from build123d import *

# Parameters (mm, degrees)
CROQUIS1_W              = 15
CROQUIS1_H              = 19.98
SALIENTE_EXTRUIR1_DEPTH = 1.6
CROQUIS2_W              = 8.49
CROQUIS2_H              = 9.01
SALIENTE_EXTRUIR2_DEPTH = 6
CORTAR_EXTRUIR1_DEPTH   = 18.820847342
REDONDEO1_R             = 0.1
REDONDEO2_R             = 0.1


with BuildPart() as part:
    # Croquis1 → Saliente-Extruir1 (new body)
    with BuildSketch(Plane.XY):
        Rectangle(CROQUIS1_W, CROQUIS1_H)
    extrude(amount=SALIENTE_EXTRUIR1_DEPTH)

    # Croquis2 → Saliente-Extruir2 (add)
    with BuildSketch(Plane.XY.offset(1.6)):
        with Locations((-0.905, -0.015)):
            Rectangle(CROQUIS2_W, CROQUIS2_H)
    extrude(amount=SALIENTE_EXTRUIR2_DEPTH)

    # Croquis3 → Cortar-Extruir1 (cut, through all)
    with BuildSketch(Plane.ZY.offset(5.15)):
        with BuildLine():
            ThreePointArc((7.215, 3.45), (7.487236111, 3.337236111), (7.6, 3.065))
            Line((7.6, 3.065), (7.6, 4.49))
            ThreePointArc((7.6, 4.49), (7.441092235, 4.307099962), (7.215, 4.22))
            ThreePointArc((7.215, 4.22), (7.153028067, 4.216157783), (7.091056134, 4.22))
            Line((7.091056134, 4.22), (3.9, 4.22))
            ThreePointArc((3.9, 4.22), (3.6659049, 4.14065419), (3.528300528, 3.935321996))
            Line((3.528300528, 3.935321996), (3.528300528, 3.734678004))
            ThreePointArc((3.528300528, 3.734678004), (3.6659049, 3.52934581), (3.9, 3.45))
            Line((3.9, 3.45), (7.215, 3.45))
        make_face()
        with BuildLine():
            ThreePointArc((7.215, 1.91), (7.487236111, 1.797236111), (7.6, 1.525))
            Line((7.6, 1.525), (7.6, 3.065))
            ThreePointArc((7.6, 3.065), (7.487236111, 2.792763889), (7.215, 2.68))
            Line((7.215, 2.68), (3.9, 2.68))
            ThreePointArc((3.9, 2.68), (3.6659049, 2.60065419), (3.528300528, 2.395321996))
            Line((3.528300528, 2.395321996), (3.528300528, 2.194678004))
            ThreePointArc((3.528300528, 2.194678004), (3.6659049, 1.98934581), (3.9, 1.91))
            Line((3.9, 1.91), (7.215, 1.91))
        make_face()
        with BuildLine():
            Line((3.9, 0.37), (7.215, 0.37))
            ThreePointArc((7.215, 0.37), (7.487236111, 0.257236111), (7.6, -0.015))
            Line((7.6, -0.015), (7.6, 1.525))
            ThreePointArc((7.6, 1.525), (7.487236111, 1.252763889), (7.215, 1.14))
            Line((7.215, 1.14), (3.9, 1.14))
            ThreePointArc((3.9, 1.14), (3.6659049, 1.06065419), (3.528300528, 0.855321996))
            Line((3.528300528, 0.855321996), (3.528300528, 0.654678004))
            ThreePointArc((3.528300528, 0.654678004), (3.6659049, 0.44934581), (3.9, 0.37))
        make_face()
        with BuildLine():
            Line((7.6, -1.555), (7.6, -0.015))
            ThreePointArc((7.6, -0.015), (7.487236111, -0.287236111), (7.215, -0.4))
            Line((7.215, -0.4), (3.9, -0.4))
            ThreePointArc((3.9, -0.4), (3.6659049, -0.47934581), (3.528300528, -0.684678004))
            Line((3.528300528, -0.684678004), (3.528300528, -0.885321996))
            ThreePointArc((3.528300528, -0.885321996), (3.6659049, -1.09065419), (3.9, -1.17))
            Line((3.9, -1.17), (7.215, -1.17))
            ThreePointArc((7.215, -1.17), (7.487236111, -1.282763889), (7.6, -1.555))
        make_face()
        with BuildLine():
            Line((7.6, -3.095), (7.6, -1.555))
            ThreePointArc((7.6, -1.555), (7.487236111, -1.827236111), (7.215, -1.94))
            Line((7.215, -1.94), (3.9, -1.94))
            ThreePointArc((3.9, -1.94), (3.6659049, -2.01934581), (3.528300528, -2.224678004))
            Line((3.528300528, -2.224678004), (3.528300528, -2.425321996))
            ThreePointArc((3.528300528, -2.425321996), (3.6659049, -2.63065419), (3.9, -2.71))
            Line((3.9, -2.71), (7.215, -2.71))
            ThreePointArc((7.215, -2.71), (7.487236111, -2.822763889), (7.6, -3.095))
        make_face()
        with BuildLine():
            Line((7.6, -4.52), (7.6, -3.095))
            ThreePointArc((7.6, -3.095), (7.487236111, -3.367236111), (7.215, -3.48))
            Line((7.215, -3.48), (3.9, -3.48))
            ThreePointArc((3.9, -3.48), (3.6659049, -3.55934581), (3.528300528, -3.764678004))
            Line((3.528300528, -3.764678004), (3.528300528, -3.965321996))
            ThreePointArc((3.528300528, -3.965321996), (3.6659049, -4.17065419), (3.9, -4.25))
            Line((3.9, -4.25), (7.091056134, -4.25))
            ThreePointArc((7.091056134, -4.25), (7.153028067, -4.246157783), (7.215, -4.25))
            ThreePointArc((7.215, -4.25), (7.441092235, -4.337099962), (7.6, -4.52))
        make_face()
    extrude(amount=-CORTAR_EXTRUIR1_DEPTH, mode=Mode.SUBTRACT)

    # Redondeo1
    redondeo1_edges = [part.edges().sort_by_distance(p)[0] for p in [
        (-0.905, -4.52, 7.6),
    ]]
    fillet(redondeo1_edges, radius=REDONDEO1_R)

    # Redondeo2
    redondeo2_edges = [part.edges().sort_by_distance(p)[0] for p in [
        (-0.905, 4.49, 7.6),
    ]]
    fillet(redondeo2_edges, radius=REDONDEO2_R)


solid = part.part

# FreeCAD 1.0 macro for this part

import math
import FreeCAD as App
import Part
import Sketcher
Q = App.Units.Quantity


def edges_at(feature, points):
    """Names of the edges that pass closest to the given points."""
    edges = feature.Shape.Edges
    near = lambda p: min(range(len(edges)), key=lambda i: edges[i].distToShape(Part.Vertex(*p))[0])
    return sorted({f"Edge{near(p) + 1}" for p in points})


def add_polygon(sketch, points):
    """Adds a closed chain of lines whose ends are joined by coincident constraints."""
    first, n = sketch.GeometryCount, len(points)
    for a, b in zip(points, points[1:] + points[:1]):
        sketch.addGeometry(Part.LineSegment(App.Vector(*a, 0), App.Vector(*b, 0)), False)
    for i in range(n):
        sketch.addConstraint(Sketcher.Constraint("Coincident", first + i, 2, first + (i + 1) % n, 1))

doc = App.newDocument("Part")
params = doc.addObject("Spreadsheet::Sheet", "Params")
for row, (alias, value) in enumerate([
    ("sketch1_width", "15 mm"),
    ("sketch1_height", "19.98 mm"),
    ("pad1_length", "1.6 mm"),
    ("sketch2_width", "8.49 mm"),
    ("sketch2_height", "9.01 mm"),
    ("pad2_length", "6 mm"),
    ("fillet_radius", "0.1 mm"),
    ("fillet2_radius", "0.1 mm"),
], start=1):
    params.set(f"A{row}", alias)
    params.set(f"B{row}", "=" + value)
    params.setAlias(f"B{row}", alias)

body = doc.addObject("PartDesign::Body", "Body")

sketch1 = body.newObject("Sketcher::SketchObject", "Sketch")
sketch1.AttachmentSupport = (doc.getObject("XY_Plane"), [""])
sketch1.MapMode = "FlatFace"
add_polygon(sketch1, [(-8, 10), (-8, -10), (8, -10), (8, 10)])
sketch1.addConstraint(Sketcher.Constraint("Vertical", 0))
sketch1.addConstraint(Sketcher.Constraint("Horizontal", 1))
sketch1.addConstraint(Sketcher.Constraint("Vertical", 2))
sketch1.addConstraint(Sketcher.Constraint("Horizontal", 3))
sketch1.addConstraint(Sketcher.Constraint("Symmetric", 0, 2, 2, 2, -1, 1))
sketch1.addConstraint(Sketcher.Constraint("DistanceX", 1, 1, 1, 2, Q("15 mm")))
sketch1.addConstraint(Sketcher.Constraint("DistanceY", 0, 2, 0, 1, Q("19.98 mm")))
sketch1.setExpression("Constraints[9]", "Params.sketch1_width")
sketch1.setExpression("Constraints[10]", "Params.sketch1_height")
pad1 = body.newObject("PartDesign::Pad", "Pad")
pad1.Profile = sketch1
pad1.setExpression("Length", "Params.pad1_length")

sketch2 = body.newObject("Sketcher::SketchObject", "Sketch001")
sketch2.AttachmentSupport = (doc.getObject("XY_Plane"), [""])
sketch2.MapMode = "FlatFace"
sketch2.AttachmentOffset = App.Placement(App.Vector(0, 0, 1.6), App.Rotation())
add_polygon(sketch2, [(-5, 4), (-5, -5), (3, -5), (3, 4)])
sketch2.addConstraint(Sketcher.Constraint("Vertical", 0))
sketch2.addConstraint(Sketcher.Constraint("Horizontal", 1))
sketch2.addConstraint(Sketcher.Constraint("Vertical", 2))
sketch2.addConstraint(Sketcher.Constraint("Horizontal", 3))
sketch2.addConstraint(Sketcher.Constraint("DistanceX", 1, 1, 1, 2, Q("8.49 mm")))
sketch2.addConstraint(Sketcher.Constraint("DistanceY", 0, 2, 0, 1, Q("9.01 mm")))
sketch2.addConstraint(Sketcher.Constraint("DistanceX", 0, 2, -1, 1, Q("5.15 mm")))
sketch2.addConstraint(Sketcher.Constraint("DistanceY", 0, 2, -1, 1, Q("4.52 mm")))
sketch2.setExpression("Constraints[8]", "Params.sketch2_width")
sketch2.setExpression("Constraints[9]", "Params.sketch2_height")
pad2 = body.newObject("PartDesign::Pad", "Pad001")
pad2.Profile = sketch2
pad2.setExpression("Length", "Params.pad2_length")

sketch3 = body.newObject("Sketcher::SketchObject", "Sketch002")
sketch3.AttachmentSupport = (doc.getObject("YZ_Plane"), [""])
sketch3.MapMode = "FlatFace"
sketch3.AttachmentOffset = App.Placement(App.Vector(0, 0, -5.15), App.Rotation())
sketch3.addGeometry(Part.ArcOfCircle(Part.Circle(App.Vector(3.07, 7.22, 0), App.Vector(0, 0, 1), 0.38), math.radians(0), math.radians(90)), False)
sketch3.addGeometry(Part.LineSegment(App.Vector(3.06, 7.6, 0), App.Vector(4.49, 7.6, 0)), False)
sketch3.addGeometry(Part.ArcOfCircle(Part.Circle(App.Vector(4.72, 7.15, 0), App.Vector(0, 0, 1), 0.5), math.radians(117), math.radians(173)), False)
sketch3.addGeometry(Part.ArcOfCircle(Part.Circle(App.Vector(4.72, 7.15, 0), App.Vector(0, 0, 1), 0.5), math.radians(172.9), math.radians(187.1)), False)
sketch3.addGeometry(Part.LineSegment(App.Vector(4.22, 7.09, 0), App.Vector(4.22, 3.9, 0)), False)
sketch3.addGeometry(Part.ArcOfCircle(Part.Circle(App.Vector(3.83, 3.9, 0), App.Vector(0, 0, 1), 0.39), math.radians(-75), math.radians(0)), False)
sketch3.addGeometry(Part.LineSegment(App.Vector(3.94, 3.53, 0), App.Vector(3.73, 3.53, 0)), False)
sketch3.addGeometry(Part.ArcOfCircle(Part.Circle(App.Vector(3.84, 3.9, 0), App.Vector(0, 0, 1), 0.39), math.radians(-180), math.radians(-105)), False)
sketch3.addGeometry(Part.LineSegment(App.Vector(3.45, 3.9, 0), App.Vector(3.45, 7.21, 0)), False)
sketch3.addGeometry(Part.ArcOfCircle(Part.Circle(App.Vector(1.53, 7.22, 0), App.Vector(0, 0, 1), 0.38), math.radians(0), math.radians(90)), False)
sketch3.addGeometry(Part.LineSegment(App.Vector(1.52, 7.6, 0), App.Vector(3.06, 7.6, 0)), False)
sketch3.addGeometry(Part.ArcOfCircle(Part.Circle(App.Vector(3.06, 7.22, 0), App.Vector(0, 0, 1), 0.38), math.radians(90), math.radians(180)), False)
sketch3.addGeometry(Part.LineSegment(App.Vector(2.68, 7.21, 0), App.Vector(2.68, 3.9, 0)), False)
sketch3.addGeometry(Part.ArcOfCircle(Part.Circle(App.Vector(2.29, 3.9, 0), App.Vector(0, 0, 1), 0.39), math.radians(-75), math.radians(0)), False)
sketch3.addGeometry(Part.LineSegment(App.Vector(2.4, 3.53, 0), App.Vector(2.19, 3.53, 0)), False)
sketch3.addGeometry(Part.ArcOfCircle(Part.Circle(App.Vector(2.3, 3.9, 0), App.Vector(0, 0, 1), 0.39), math.radians(-180), math.radians(-105)), False)
sketch3.addGeometry(Part.LineSegment(App.Vector(1.91, 3.9, 0), App.Vector(1.91, 7.21, 0)), False)
sketch3.addGeometry(Part.LineSegment(App.Vector(0.37, 3.9, 0), App.Vector(0.37, 7.21, 0)), False)
sketch3.addGeometry(Part.ArcOfCircle(Part.Circle(App.Vector(-0.01, 7.22, 0), App.Vector(0, 0, 1), 0.38), math.radians(0), math.radians(90)), False)
sketch3.addGeometry(Part.LineSegment(App.Vector(-0.01, 7.6, 0), App.Vector(1.52, 7.6, 0)), False)
sketch3.addGeometry(Part.ArcOfCircle(Part.Circle(App.Vector(1.52, 7.22, 0), App.Vector(0, 0, 1), 0.38), math.radians(90), math.radians(180)), False)
sketch3.addGeometry(Part.LineSegment(App.Vector(1.14, 7.21, 0), App.Vector(1.14, 3.9, 0)), False)
sketch3.addGeometry(Part.ArcOfCircle(Part.Circle(App.Vector(0.75, 3.9, 0), App.Vector(0, 0, 1), 0.39), math.radians(-75), math.radians(0)), False)
sketch3.addGeometry(Part.LineSegment(App.Vector(0.86, 3.53, 0), App.Vector(0.65, 3.53, 0)), False)
sketch3.addGeometry(Part.ArcOfCircle(Part.Circle(App.Vector(0.76, 3.9, 0), App.Vector(0, 0, 1), 0.39), math.radians(-180), math.radians(-105)), False)
sketch3.addGeometry(Part.LineSegment(App.Vector(-1.55, 7.6, 0), App.Vector(-0.01, 7.6, 0)), False)
sketch3.addGeometry(Part.ArcOfCircle(Part.Circle(App.Vector(-0.02, 7.22, 0), App.Vector(0, 0, 1), 0.38), math.radians(90), math.radians(180)), False)
sketch3.addGeometry(Part.LineSegment(App.Vector(-0.4, 7.21, 0), App.Vector(-0.4, 3.9, 0)), False)
sketch3.addGeometry(Part.ArcOfCircle(Part.Circle(App.Vector(-0.79, 3.9, 0), App.Vector(0, 0, 1), 0.39), math.radians(-75), math.radians(0)), False)
sketch3.addGeometry(Part.LineSegment(App.Vector(-0.68, 3.53, 0), App.Vector(-0.89, 3.53, 0)), False)
sketch3.addGeometry(Part.ArcOfCircle(Part.Circle(App.Vector(-0.78, 3.9, 0), App.Vector(0, 0, 1), 0.39), math.radians(-180), math.radians(-105)), False)
sketch3.addGeometry(Part.LineSegment(App.Vector(-1.17, 3.9, 0), App.Vector(-1.17, 7.21, 0)), False)
sketch3.addGeometry(Part.ArcOfCircle(Part.Circle(App.Vector(-1.55, 7.22, 0), App.Vector(0, 0, 1), 0.38), math.radians(0), math.radians(90)), False)
sketch3.addGeometry(Part.LineSegment(App.Vector(-3.1, 7.6, 0), App.Vector(-1.55, 7.6, 0)), False)
sketch3.addGeometry(Part.ArcOfCircle(Part.Circle(App.Vector(-1.56, 7.22, 0), App.Vector(0, 0, 1), 0.38), math.radians(90), math.radians(180)), False)
sketch3.addGeometry(Part.LineSegment(App.Vector(-1.94, 7.21, 0), App.Vector(-1.94, 3.9, 0)), False)
sketch3.addGeometry(Part.ArcOfCircle(Part.Circle(App.Vector(-2.33, 3.9, 0), App.Vector(0, 0, 1), 0.39), math.radians(-75), math.radians(0)), False)
sketch3.addGeometry(Part.LineSegment(App.Vector(-2.22, 3.53, 0), App.Vector(-2.43, 3.53, 0)), False)
sketch3.addGeometry(Part.ArcOfCircle(Part.Circle(App.Vector(-2.32, 3.9, 0), App.Vector(0, 0, 1), 0.39), math.radians(-180), math.radians(-105)), False)
sketch3.addGeometry(Part.LineSegment(App.Vector(-2.71, 3.9, 0), App.Vector(-2.71, 7.21, 0)), False)
sketch3.addGeometry(Part.ArcOfCircle(Part.Circle(App.Vector(-3.09, 7.22, 0), App.Vector(0, 0, 1), 0.38), math.radians(0), math.radians(90)), False)
sketch3.addGeometry(Part.LineSegment(App.Vector(-4.52, 7.6, 0), App.Vector(-3.1, 7.6, 0)), False)
sketch3.addGeometry(Part.ArcOfCircle(Part.Circle(App.Vector(-3.1, 7.22, 0), App.Vector(0, 0, 1), 0.38), math.radians(90), math.radians(180)), False)
sketch3.addGeometry(Part.LineSegment(App.Vector(-3.48, 7.21, 0), App.Vector(-3.48, 3.9, 0)), False)
sketch3.addGeometry(Part.ArcOfCircle(Part.Circle(App.Vector(-3.87, 3.9, 0), App.Vector(0, 0, 1), 0.39), math.radians(-75), math.radians(0)), False)
sketch3.addGeometry(Part.LineSegment(App.Vector(-3.76, 3.53, 0), App.Vector(-3.97, 3.53, 0)), False)
sketch3.addGeometry(Part.ArcOfCircle(Part.Circle(App.Vector(-3.86, 3.9, 0), App.Vector(0, 0, 1), 0.39), math.radians(-180), math.radians(-105)), False)
sketch3.addGeometry(Part.LineSegment(App.Vector(-4.25, 3.9, 0), App.Vector(-4.25, 7.09, 0)), False)
sketch3.addGeometry(Part.ArcOfCircle(Part.Circle(App.Vector(-4.75, 7.15, 0), App.Vector(0, 0, 1), 0.5), math.radians(-7.1), math.radians(7.1)), False)
sketch3.addGeometry(Part.ArcOfCircle(Part.Circle(App.Vector(-4.75, 7.15, 0), App.Vector(0, 0, 1), 0.5), math.radians(7), math.radians(63)), False)
sketch3.addConstraint(Sketcher.Constraint("Tangent", 0, 2, 1, 1))
sketch3.addConstraint(Sketcher.Constraint("Coincident", 1, 2, 2, 1))
sketch3.addConstraint(Sketcher.Constraint("Tangent", 2, 2, 3, 1))
sketch3.addConstraint(Sketcher.Constraint("Coincident", 3, 2, 4, 1))
sketch3.addConstraint(Sketcher.Constraint("Tangent", 4, 2, 5, 2))
sketch3.addConstraint(Sketcher.Constraint("Coincident", 5, 1, 6, 1))
sketch3.addConstraint(Sketcher.Constraint("Coincident", 6, 2, 7, 2))
sketch3.addConstraint(Sketcher.Constraint("Tangent", 7, 1, 8, 1))
sketch3.addConstraint(Sketcher.Constraint("Tangent", 8, 2, 0, 1))
sketch3.addConstraint(Sketcher.Constraint("Tangent", 9, 2, 10, 1))
sketch3.addConstraint(Sketcher.Constraint("Tangent", 10, 2, 11, 1))
sketch3.addConstraint(Sketcher.Constraint("Tangent", 11, 2, 12, 1))
sketch3.addConstraint(Sketcher.Constraint("Tangent", 12, 2, 13, 2))
sketch3.addConstraint(Sketcher.Constraint("Coincident", 13, 1, 14, 1))
sketch3.addConstraint(Sketcher.Constraint("Coincident", 14, 2, 15, 2))
sketch3.addConstraint(Sketcher.Constraint("Tangent", 15, 1, 16, 1))
sketch3.addConstraint(Sketcher.Constraint("Tangent", 16, 2, 9, 1))
sketch3.addConstraint(Sketcher.Constraint("Tangent", 17, 2, 18, 1))
sketch3.addConstraint(Sketcher.Constraint("Tangent", 18, 2, 19, 1))
sketch3.addConstraint(Sketcher.Constraint("Tangent", 19, 2, 20, 1))
sketch3.addConstraint(Sketcher.Constraint("Tangent", 20, 2, 21, 1))
sketch3.addConstraint(Sketcher.Constraint("Tangent", 21, 2, 22, 2))
sketch3.addConstraint(Sketcher.Constraint("Coincident", 22, 1, 23, 1))
sketch3.addConstraint(Sketcher.Constraint("Coincident", 23, 2, 24, 2))
sketch3.addConstraint(Sketcher.Constraint("Tangent", 24, 1, 17, 1))
sketch3.addConstraint(Sketcher.Constraint("Tangent", 25, 2, 26, 1))
sketch3.addConstraint(Sketcher.Constraint("Tangent", 26, 2, 27, 1))
sketch3.addConstraint(Sketcher.Constraint("Tangent", 27, 2, 28, 2))
sketch3.addConstraint(Sketcher.Constraint("Coincident", 28, 1, 29, 1))
sketch3.addConstraint(Sketcher.Constraint("Coincident", 29, 2, 30, 2))
sketch3.addConstraint(Sketcher.Constraint("Tangent", 30, 1, 31, 1))
sketch3.addConstraint(Sketcher.Constraint("Tangent", 31, 2, 32, 1))
sketch3.addConstraint(Sketcher.Constraint("Tangent", 32, 2, 25, 1))
sketch3.addConstraint(Sketcher.Constraint("Tangent", 33, 2, 34, 1))
sketch3.addConstraint(Sketcher.Constraint("Tangent", 34, 2, 35, 1))
sketch3.addConstraint(Sketcher.Constraint("Tangent", 35, 2, 36, 2))
sketch3.addConstraint(Sketcher.Constraint("Coincident", 36, 1, 37, 1))
sketch3.addConstraint(Sketcher.Constraint("Coincident", 37, 2, 38, 2))
sketch3.addConstraint(Sketcher.Constraint("Tangent", 38, 1, 39, 1))
sketch3.addConstraint(Sketcher.Constraint("Tangent", 39, 2, 40, 1))
sketch3.addConstraint(Sketcher.Constraint("Tangent", 40, 2, 33, 1))
sketch3.addConstraint(Sketcher.Constraint("Tangent", 41, 2, 42, 1))
sketch3.addConstraint(Sketcher.Constraint("Tangent", 42, 2, 43, 1))
sketch3.addConstraint(Sketcher.Constraint("Tangent", 43, 2, 44, 2))
sketch3.addConstraint(Sketcher.Constraint("Coincident", 44, 1, 45, 1))
sketch3.addConstraint(Sketcher.Constraint("Coincident", 45, 2, 46, 2))
sketch3.addConstraint(Sketcher.Constraint("Tangent", 46, 1, 47, 1))
sketch3.addConstraint(Sketcher.Constraint("Coincident", 47, 2, 48, 1))
sketch3.addConstraint(Sketcher.Constraint("Tangent", 48, 2, 49, 1))
sketch3.addConstraint(Sketcher.Constraint("Coincident", 49, 2, 41, 1))
sketch3.addConstraint(Sketcher.Constraint("Horizontal", 1))
sketch3.addConstraint(Sketcher.Constraint("Vertical", 4))
sketch3.addConstraint(Sketcher.Constraint("Horizontal", 6))
sketch3.addConstraint(Sketcher.Constraint("Vertical", 8))
sketch3.addConstraint(Sketcher.Constraint("Horizontal", 10))
sketch3.addConstraint(Sketcher.Constraint("Vertical", 12))
sketch3.addConstraint(Sketcher.Constraint("Horizontal", 14))
sketch3.addConstraint(Sketcher.Constraint("Vertical", 16))
sketch3.addConstraint(Sketcher.Constraint("Vertical", 17))
sketch3.addConstraint(Sketcher.Constraint("Horizontal", 19))
sketch3.addConstraint(Sketcher.Constraint("Vertical", 21))
sketch3.addConstraint(Sketcher.Constraint("Horizontal", 23))
sketch3.addConstraint(Sketcher.Constraint("Horizontal", 25))
sketch3.addConstraint(Sketcher.Constraint("Vertical", 27))
sketch3.addConstraint(Sketcher.Constraint("Horizontal", 29))
sketch3.addConstraint(Sketcher.Constraint("Vertical", 31))
sketch3.addConstraint(Sketcher.Constraint("Horizontal", 33))
sketch3.addConstraint(Sketcher.Constraint("Vertical", 35))
sketch3.addConstraint(Sketcher.Constraint("Horizontal", 37))
sketch3.addConstraint(Sketcher.Constraint("Vertical", 39))
sketch3.addConstraint(Sketcher.Constraint("Horizontal", 41))
sketch3.addConstraint(Sketcher.Constraint("Vertical", 43))
sketch3.addConstraint(Sketcher.Constraint("Horizontal", 45))
sketch3.addConstraint(Sketcher.Constraint("Vertical", 47))
sketch3.addConstraint(Sketcher.Constraint("Coincident", 7, 3, 5, 3))
sketch3.addConstraint(Sketcher.Constraint("Coincident", 11, 3, 0, 3))
sketch3.addConstraint(Sketcher.Constraint("Coincident", 15, 3, 13, 3))
sketch3.addConstraint(Sketcher.Constraint("Coincident", 20, 3, 9, 3))
sketch3.addConstraint(Sketcher.Constraint("Coincident", 24, 3, 22, 3))
sketch3.addConstraint(Sketcher.Constraint("Coincident", 26, 3, 18, 3))
sketch3.addConstraint(Sketcher.Constraint("Coincident", 30, 3, 28, 3))
sketch3.addConstraint(Sketcher.Constraint("Coincident", 34, 3, 32, 3))
sketch3.addConstraint(Sketcher.Constraint("Coincident", 38, 3, 36, 3))
sketch3.addConstraint(Sketcher.Constraint("Coincident", 42, 3, 40, 3))
sketch3.addConstraint(Sketcher.Constraint("Coincident", 46, 3, 44, 3))
sketch3.addConstraint(Sketcher.Constraint("Equal", 2, 3))
sketch3.addConstraint(Sketcher.Constraint("Equal", 0, 5))
sketch3.addConstraint(Sketcher.Constraint("Equal", 5, 7))
sketch3.addConstraint(Sketcher.Constraint("Equal", 7, 9))
sketch3.addConstraint(Sketcher.Constraint("Equal", 9, 11))
sketch3.addConstraint(Sketcher.Constraint("Equal", 11, 13))
sketch3.addConstraint(Sketcher.Constraint("Equal", 13, 15))
sketch3.addConstraint(Sketcher.Constraint("Equal", 15, 18))
sketch3.addConstraint(Sketcher.Constraint("Equal", 18, 20))
sketch3.addConstraint(Sketcher.Constraint("Equal", 20, 22))
sketch3.addConstraint(Sketcher.Constraint("Equal", 22, 24))
sketch3.addConstraint(Sketcher.Constraint("Equal", 24, 26))
sketch3.addConstraint(Sketcher.Constraint("Equal", 26, 28))
sketch3.addConstraint(Sketcher.Constraint("Equal", 28, 30))
sketch3.addConstraint(Sketcher.Constraint("Equal", 30, 32))
sketch3.addConstraint(Sketcher.Constraint("Equal", 32, 34))
sketch3.addConstraint(Sketcher.Constraint("Equal", 34, 36))
sketch3.addConstraint(Sketcher.Constraint("Equal", 36, 38))
sketch3.addConstraint(Sketcher.Constraint("Equal", 38, 40))
sketch3.addConstraint(Sketcher.Constraint("Equal", 40, 42))
sketch3.addConstraint(Sketcher.Constraint("Equal", 42, 44))
sketch3.addConstraint(Sketcher.Constraint("Equal", 44, 46))
sketch3.addConstraint(Sketcher.Constraint("Equal", 3, 48))
sketch3.addConstraint(Sketcher.Constraint("Equal", 48, 49))
sketch3.addConstraint(Sketcher.Constraint("Horizontal", 7, 3, 13, 3))
sketch3.addConstraint(Sketcher.Constraint("Horizontal", 15, 3, 22, 3))
sketch3.addConstraint(Sketcher.Constraint("Horizontal", 24, 3, 28, 3))
sketch3.addConstraint(Sketcher.Constraint("Horizontal", 30, 3, 36, 3))
sketch3.addConstraint(Sketcher.Constraint("Horizontal", 38, 3, 44, 3))
sketch3.addConstraint(Sketcher.Constraint("Horizontal", 3, 3, 48, 3))
sketch3.addConstraint(Sketcher.Constraint("Horizontal", 42, 3, 2, 2))
sketch3.addConstraint(Sketcher.Constraint("Horizontal", 6, 2, 13, 1))
sketch3.addConstraint(Sketcher.Constraint("Horizontal", 14, 2, 22, 1))
sketch3.addConstraint(Sketcher.Constraint("Horizontal", 23, 2, 28, 1))
sketch3.addConstraint(Sketcher.Constraint("Horizontal", 29, 2, 36, 1))
sketch3.addConstraint(Sketcher.Constraint("Horizontal", 37, 2, 44, 1))
sketch3.addConstraint(Sketcher.Constraint("Horizontal", 3, 2, 47, 2))
sketch3.addConstraint(Sketcher.Constraint("Horizontal", 42, 2, 48, 2))
sketch3.addConstraint(Sketcher.Constraint("Vertical", 2, 2, 3, 2))
sketch3.addConstraint(Sketcher.Constraint("Radius", 0, Q("0.385 mm")))
sketch3.addConstraint(Sketcher.Constraint("DistanceY", -1, 1, 5, 3, Q("3.9 mm")))
sketch3.addConstraint(Sketcher.Constraint("DistanceY", -1, 1, 0, 2, Q("7.6 mm")))
sketch3.addConstraint(Sketcher.Constraint("DistanceX", 26, 2, -1, 1, Q("0.4 mm")))
sketch3.addConstraint(Sketcher.Constraint("Radius", 2, Q("0.5017 mm")))
sketch3.addConstraint(Sketcher.Constraint("DistanceX", 1, 1, 1, 2, Q("1.425 mm")))
sketch3.addConstraint(Sketcher.Constraint("DistanceY", -1, 1, 5, 1, Q("3.528301 mm")))
pocket1 = body.newObject("PartDesign::Pocket", "Pocket")
pocket1.Profile = sketch3
pocket1.Type = "ThroughAll"
pocket1.Reversed = True
doc.recompute()

fillet = body.newObject("PartDesign::Fillet", "Fillet")
fillet.Base = (pocket1, edges_at(pocket1, [(-0.905, -4.52, 7.6)]))
fillet.setExpression("Radius", "Params.fillet_radius")
doc.recompute()

fillet2 = body.newObject("PartDesign::Fillet", "Fillet001")
fillet2.Base = (fillet, edges_at(fillet, [(-0.905, 4.49, 7.6)]))
fillet2.setExpression("Radius", "Params.fillet2_radius")

doc.recompute()
